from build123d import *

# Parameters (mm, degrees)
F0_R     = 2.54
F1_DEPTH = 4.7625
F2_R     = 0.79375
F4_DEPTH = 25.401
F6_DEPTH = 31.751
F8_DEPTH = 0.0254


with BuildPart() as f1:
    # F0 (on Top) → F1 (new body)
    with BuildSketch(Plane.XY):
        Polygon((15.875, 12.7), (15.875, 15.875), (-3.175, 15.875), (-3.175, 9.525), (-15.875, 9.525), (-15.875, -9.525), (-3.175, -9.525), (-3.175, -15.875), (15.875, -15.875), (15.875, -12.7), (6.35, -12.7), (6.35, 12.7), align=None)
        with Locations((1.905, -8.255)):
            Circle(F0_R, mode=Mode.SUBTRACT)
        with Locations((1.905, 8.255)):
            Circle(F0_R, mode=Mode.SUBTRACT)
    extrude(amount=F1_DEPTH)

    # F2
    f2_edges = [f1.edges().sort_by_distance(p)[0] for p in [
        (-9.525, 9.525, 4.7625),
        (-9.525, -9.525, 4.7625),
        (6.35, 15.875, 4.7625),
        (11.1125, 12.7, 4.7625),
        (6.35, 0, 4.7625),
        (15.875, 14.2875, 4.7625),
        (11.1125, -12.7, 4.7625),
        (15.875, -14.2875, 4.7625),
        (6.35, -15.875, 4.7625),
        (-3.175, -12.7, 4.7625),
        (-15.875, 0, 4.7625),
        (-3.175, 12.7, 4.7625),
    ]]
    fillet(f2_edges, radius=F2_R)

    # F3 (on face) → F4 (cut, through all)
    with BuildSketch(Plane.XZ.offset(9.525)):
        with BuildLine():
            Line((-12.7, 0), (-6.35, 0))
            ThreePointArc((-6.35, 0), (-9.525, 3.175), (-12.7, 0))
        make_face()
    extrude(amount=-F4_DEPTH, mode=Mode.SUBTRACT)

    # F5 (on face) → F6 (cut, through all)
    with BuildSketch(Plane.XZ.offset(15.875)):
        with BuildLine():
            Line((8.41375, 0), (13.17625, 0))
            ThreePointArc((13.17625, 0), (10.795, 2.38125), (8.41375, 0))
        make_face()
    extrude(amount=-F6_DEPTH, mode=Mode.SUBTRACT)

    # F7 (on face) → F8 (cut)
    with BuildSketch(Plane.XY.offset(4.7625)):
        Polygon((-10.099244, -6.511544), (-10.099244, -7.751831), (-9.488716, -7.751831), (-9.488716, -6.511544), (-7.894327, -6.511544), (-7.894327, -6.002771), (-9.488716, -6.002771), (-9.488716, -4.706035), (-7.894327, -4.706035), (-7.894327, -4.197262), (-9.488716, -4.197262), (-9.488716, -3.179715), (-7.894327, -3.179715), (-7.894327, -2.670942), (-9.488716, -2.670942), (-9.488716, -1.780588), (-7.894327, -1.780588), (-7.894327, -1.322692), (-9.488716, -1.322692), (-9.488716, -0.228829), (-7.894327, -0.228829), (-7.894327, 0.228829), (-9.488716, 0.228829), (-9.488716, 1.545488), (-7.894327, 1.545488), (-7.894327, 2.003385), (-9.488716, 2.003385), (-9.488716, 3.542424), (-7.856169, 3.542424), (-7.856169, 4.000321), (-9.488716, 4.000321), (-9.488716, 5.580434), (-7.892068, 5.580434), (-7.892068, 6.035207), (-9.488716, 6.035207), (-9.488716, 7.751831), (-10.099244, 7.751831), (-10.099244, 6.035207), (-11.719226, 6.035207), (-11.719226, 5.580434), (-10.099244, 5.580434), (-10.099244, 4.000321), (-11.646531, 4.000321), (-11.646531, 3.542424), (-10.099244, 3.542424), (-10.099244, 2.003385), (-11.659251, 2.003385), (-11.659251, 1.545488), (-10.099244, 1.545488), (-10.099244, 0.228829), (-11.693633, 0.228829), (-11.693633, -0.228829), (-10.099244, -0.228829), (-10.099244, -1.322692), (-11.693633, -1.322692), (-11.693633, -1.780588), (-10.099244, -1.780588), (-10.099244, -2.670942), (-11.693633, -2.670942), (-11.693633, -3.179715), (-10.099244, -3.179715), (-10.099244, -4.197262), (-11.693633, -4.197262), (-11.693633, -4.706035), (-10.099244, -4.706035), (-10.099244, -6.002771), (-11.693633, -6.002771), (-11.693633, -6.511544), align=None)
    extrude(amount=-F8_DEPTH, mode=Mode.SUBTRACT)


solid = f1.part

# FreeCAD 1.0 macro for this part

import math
import FreeCAD as App
import Part
import Sketcher
Q = App.Units.Quantity


def edges_at(feature, points):
    """Names of the edges that pass closest to the given points."""
    edges = feature.Shape.Edges
    near = lambda p: min(range(len(edges)), key=lambda i: edges[i].distToShape(Part.Vertex(*p))[0])
    return sorted({f"Edge{near(p) + 1}" for p in points})

doc = App.newDocument("Part")
params = doc.addObject("Spreadsheet::Sheet", "Params")
for row, (alias, value) in enumerate([
    ("sketch1_diameter", "0.2 in"),
    ("sketch1_height", "1 in"),
    ("sketch1_width", "0.5 in"),
    ("sketch1_width2", "0.75 in"),
    ("sketch1_width3", "0.375 in"),
    ("pad1_length", "0.1875 in"),
    ("fillet_radius", "0.03125 in"),
    ("sketch2_radius", "0.125 in"),
    ("sketch3_radius", "0.09375 in"),
    ("pocket3_length", "0.001 in"),
], start=1):
    params.set(f"A{row}", alias)
    params.set(f"B{row}", "=" + value)
    params.setAlias(f"B{row}", alias)

body = doc.addObject("PartDesign::Body", "Body")

sketch1 = body.newObject("Sketcher::SketchObject", "Sketch")
sketch1.AttachmentSupport = (doc.getObject("XY_Plane"), [""])
sketch1.MapMode = "FlatFace"
sketch1.addGeometry(Part.LineSegment(App.Vector(15.9, 12.7, 0), App.Vector(15.9, 15.9, 0)), False)
sketch1.addGeometry(Part.LineSegment(App.Vector(15.9, 15.9, 0), App.Vector(-3.2, 15.9, 0)), False)
sketch1.addGeometry(Part.LineSegment(App.Vector(-3.2, 15.9, 0), App.Vector(-3.2, 9.5, 0)), False)
sketch1.addGeometry(Part.LineSegment(App.Vector(-3.2, 9.5, 0), App.Vector(-15.9, 9.5, 0)), False)
sketch1.addGeometry(Part.LineSegment(App.Vector(-15.9, 9.5, 0), App.Vector(-15.9, -9.5, 0)), False)
sketch1.addGeometry(Part.LineSegment(App.Vector(-15.9, -9.5, 0), App.Vector(-3.2, -9.5, 0)), False)
sketch1.addGeometry(Part.LineSegment(App.Vector(-3.2, -9.5, 0), App.Vector(-3.2, -15.9, 0)), False)
sketch1.addGeometry(Part.LineSegment(App.Vector(-3.2, -15.9, 0), App.Vector(15.9, -15.9, 0)), False)
sketch1.addGeometry(Part.LineSegment(App.Vector(15.9, -15.9, 0), App.Vector(15.9, -12.7, 0)), False)
sketch1.addGeometry(Part.LineSegment(App.Vector(15.9, -12.7, 0), App.Vector(6.3, -12.7, 0)), False)
sketch1.addGeometry(Part.LineSegment(App.Vector(6.3, -12.7, 0), App.Vector(6.3, 12.7, 0)), False)
sketch1.addGeometry(Part.LineSegment(App.Vector(6.3, 12.7, 0), App.Vector(15.9, 12.7, 0)), False)
sketch1.addGeometry(Part.Circle(App.Vector(1.9, -8.3, 0), App.Vector(0, 0, 1), 2.5), False)
sketch1.addGeometry(Part.Circle(App.Vector(1.9, 8.3, 0), App.Vector(0, 0, 1), 2.5), False)
sketch1.addConstraint(Sketcher.Constraint("Coincident", 0, 2, 1, 1))
sketch1.addConstraint(Sketcher.Constraint("Coincident", 1, 2, 2, 1))
sketch1.addConstraint(Sketcher.Constraint("Coincident", 2, 2, 3, 1))
sketch1.addConstraint(Sketcher.Constraint("Coincident", 3, 2, 4, 1))
sketch1.addConstraint(Sketcher.Constraint("Coincident", 4, 2, 5, 1))
sketch1.addConstraint(Sketcher.Constraint("Coincident", 5, 2, 6, 1))
sketch1.addConstraint(Sketcher.Constraint("Coincident", 6, 2, 7, 1))
sketch1.addConstraint(Sketcher.Constraint("Coincident", 7, 2, 8, 1))
sketch1.addConstraint(Sketcher.Constraint("Coincident", 8, 2, 9, 1))
sketch1.addConstraint(Sketcher.Constraint("Coincident", 9, 2, 10, 1))
sketch1.addConstraint(Sketcher.Constraint("Coincident", 10, 2, 11, 1))
sketch1.addConstraint(Sketcher.Constraint("Coincident", 11, 2, 0, 1))
sketch1.addConstraint(Sketcher.Constraint("Vertical", 0))
sketch1.addConstraint(Sketcher.Constraint("Horizontal", 1))
sketch1.addConstraint(Sketcher.Constraint("Vertical", 2))
sketch1.addConstraint(Sketcher.Constraint("Horizontal", 3))
sketch1.addConstraint(Sketcher.Constraint("Vertical", 4))
sketch1.addConstraint(Sketcher.Constraint("Horizontal", 5))
sketch1.addConstraint(Sketcher.Constraint("Vertical", 6))
sketch1.addConstraint(Sketcher.Constraint("Horizontal", 7))
sketch1.addConstraint(Sketcher.Constraint("Vertical", 8))
sketch1.addConstraint(Sketcher.Constraint("Horizontal", 9))
sketch1.addConstraint(Sketcher.Constraint("Vertical", 10))
sketch1.addConstraint(Sketcher.Constraint("Horizontal", 11))
sketch1.addConstraint(Sketcher.Constraint("Equal", 12, 13))
sketch1.addConstraint(Sketcher.Constraint("Symmetric", 12, 3, 13, 3, -1))
sketch1.addConstraint(Sketcher.Constraint("Symmetric", 2, 2, 5, 2, -1))
sketch1.addConstraint(Sketcher.Constraint("Symmetric", 0, 2, 7, 2, -1))
sketch1.addConstraint(Sketcher.Constraint("Equal", 7, 4))
sketch1.addConstraint(Sketcher.Constraint("Equal", 0, 8))
sketch1.addConstraint(Sketcher.Constraint("Diameter", 12, Q("0.2 in")))
sketch1.addConstraint(Sketcher.Constraint("DistanceY", 10, 1, 10, 2, Q("1 in")))
sketch1.addConstraint(Sketcher.Constraint("DistanceX", 3, 2, 3, 1, Q("0.5 in")))
sketch1.addConstraint(Sketcher.Constraint("DistanceY", 4, 2, 1, 2, Q("1 in")))
sketch1.addConstraint(Sketcher.Constraint("DistanceX", 1, 2, 1, 1, Q("0.75 in")))
sketch1.addConstraint(Sketcher.Constraint("DistanceY", 13, 3, 0, 2, Q("0.3 in")))
sketch1.addConstraint(Sketcher.Constraint("DistanceX", 1, 2, 13, 3, Q("0.2 in")))
sketch1.addConstraint(Sketcher.Constraint("DistanceX", 9, 2, 9, 1, Q("0.375 in")))
sketch1.addConstraint(Sketcher.Constraint("DistanceX", -1, 1, 9, 2, Q("0.25 in")))
sketch1.setExpression("Constraints[30]", "Params.sketch1_diameter")
sketch1.setExpression("Constraints[31]", "Params.sketch1_height")
sketch1.setExpression("Constraints[32]", "Params.sketch1_width")
sketch1.setExpression("Constraints[34]", "Params.sketch1_width2")
sketch1.setExpression("Constraints[37]", "Params.sketch1_width3")
pad1 = body.newObject("PartDesign::Pad", "Pad")
pad1.Profile = sketch1
pad1.setExpression("Length", "Params.pad1_length")
doc.recompute()

fillet = body.newObject("PartDesign::Fillet", "Fillet")
fillet.Base = (pad1, edges_at(pad1, [
    (-9.525, 9.525, 4.763),
    (-9.525, -9.525, 4.763),
    (6.35, 15.875, 4.763),
    (11.113, 12.7, 4.763),
    (6.35, 0, 4.763),
    (15.875, 14.287, 4.763),
    (11.113, -12.7, 4.763),
    (15.875, -14.287, 4.763),
    (6.35, -15.875, 4.763),
    (-3.175, -12.7, 4.763),
    (-15.875, 0, 4.763),
    (-3.175, 12.7, 4.763),
]))
fillet.setExpression("Radius", "Params.fillet_radius")

sketch2 = body.newObject("Sketcher::SketchObject", "Sketch001")
sketch2.AttachmentSupport = (doc.getObject("XZ_Plane"), [""])
sketch2.MapMode = "FlatFace"
sketch2.AttachmentOffset = App.Placement(App.Vector(0, 0, 0.375 * 25.4), App.Rotation())
sketch2.addGeometry(Part.LineSegment(App.Vector(-12.7, 0, 0), App.Vector(-6.3, 0, 0)), False)
sketch2.addGeometry(Part.ArcOfCircle(Part.Circle(App.Vector(-9.5, 0, 0), App.Vector(0, 0, 1), 3.2), math.radians(0), math.radians(180)), False)
sketch2.addConstraint(Sketcher.Constraint("Coincident", 0, 1, 1, 2))
sketch2.addConstraint(Sketcher.Constraint("Coincident", 1, 1, 0, 2))
sketch2.addConstraint(Sketcher.Constraint("Horizontal", 0))
sketch2.addConstraint(Sketcher.Constraint("PointOnObject", 1, 3, -1))
sketch2.addConstraint(Sketcher.Constraint("PointOnObject", 0, 1, -1))
sketch2.addConstraint(Sketcher.Constraint("Radius", 1, Q("0.125 in")))
sketch2.addConstraint(Sketcher.Constraint("DistanceX", 0, 1, -1, 1, Q("0.5 in")))
sketch2.setExpression("Constraints[5]", "Params.sketch2_radius")
pocket1 = body.newObject("PartDesign::Pocket", "Pocket")
pocket1.Profile = sketch2
pocket1.Type = "ThroughAll"

sketch3 = body.newObject("Sketcher::SketchObject", "Sketch002")
sketch3.AttachmentSupport = (doc.getObject("XZ_Plane"), [""])
sketch3.MapMode = "FlatFace"
sketch3.AttachmentOffset = App.Placement(App.Vector(0, 0, 0.625 * 25.4), App.Rotation())
sketch3.addGeometry(Part.LineSegment(App.Vector(8.4, 0, 0), App.Vector(13.2, 0, 0)), False)
sketch3.addGeometry(Part.ArcOfCircle(Part.Circle(App.Vector(10.8, 0, 0), App.Vector(0, 0, 1), 2.4), math.radians(0), math.radians(180)), False)
sketch3.addConstraint(Sketcher.Constraint("Coincident", 0, 1, 1, 2))
sketch3.addConstraint(Sketcher.Constraint("Coincident", 1, 1, 0, 2))
sketch3.addConstraint(Sketcher.Constraint("Horizontal", 0))
sketch3.addConstraint(Sketcher.Constraint("PointOnObject", 1, 3, -1))
sketch3.addConstraint(Sketcher.Constraint("PointOnObject", 0, 1, -1))
sketch3.addConstraint(Sketcher.Constraint("Radius", 1, Q("0.09375 in")))
sketch3.addConstraint(Sketcher.Constraint("DistanceX", -1, 1, 1, 3, Q("0.425 in")))
sketch3.setExpression("Constraints[5]", "Params.sketch3_radius")
pocket2 = body.newObject("PartDesign::Pocket", "Pocket001")
pocket2.Profile = sketch3
pocket2.Type = "ThroughAll"

sketch4 = body.newObject("Sketcher::SketchObject", "Sketch003")
sketch4.AttachmentSupport = (doc.getObject("XY_Plane"), [""])
sketch4.MapMode = "FlatFace"
sketch4.AttachmentOffset = App.Placement(App.Vector(0, 0, 0.1875 * 25.4), App.Rotation())
sketch4.addGeometry(Part.LineSegment(App.Vector(-10.1, -6.51, 0), App.Vector(-10.1, -7.75, 0)), False)
sketch4.addGeometry(Part.LineSegment(App.Vector(-10.1, -7.75, 0), App.Vector(-9.49, -7.75, 0)), False)
sketch4.addGeometry(Part.LineSegment(App.Vector(-9.49, -7.75, 0), App.Vector(-9.49, -6.51, 0)), False)
sketch4.addGeometry(Part.LineSegment(App.Vector(-9.49, -6.51, 0), App.Vector(-7.89, -6.51, 0)), False)
sketch4.addGeometry(Part.LineSegment(App.Vector(-7.89, -6.51, 0), App.Vector(-7.89, -6, 0)), False)
sketch4.addGeometry(Part.LineSegment(App.Vector(-7.89, -6, 0), App.Vector(-9.49, -6, 0)), False)
sketch4.addGeometry(Part.LineSegment(App.Vector(-9.49, -6, 0), App.Vector(-9.49, -4.71, 0)), False)
sketch4.addGeometry(Part.LineSegment(App.Vector(-9.49, -4.71, 0), App.Vector(-7.89, -4.71, 0)), False)
sketch4.addGeometry(Part.LineSegment(App.Vector(-7.89, -4.71, 0), App.Vector(-7.89, -4.2, 0)), False)
sketch4.addGeometry(Part.LineSegment(App.Vector(-7.89, -4.2, 0), App.Vector(-9.49, -4.2, 0)), False)
sketch4.addGeometry(Part.LineSegment(App.Vector(-9.49, -4.2, 0), App.Vector(-9.49, -3.18, 0)), False)
sketch4.addGeometry(Part.LineSegment(App.Vector(-9.49, -3.18, 0), App.Vector(-7.89, -3.18, 0)), False)
sketch4.addGeometry(Part.LineSegment(App.Vector(-7.89, -3.18, 0), App.Vector(-7.89, -2.67, 0)), False)
sketch4.addGeometry(Part.LineSegment(App.Vector(-7.89, -2.67, 0), App.Vector(-9.49, -2.67, 0)), False)
sketch4.addGeometry(Part.LineSegment(App.Vector(-9.49, -2.67, 0), App.Vector(-9.49, -1.78, 0)), False)
sketch4.addGeometry(Part.LineSegment(App.Vector(-9.49, -1.78, 0), App.Vector(-7.89, -1.78, 0)), False)
sketch4.addGeometry(Part.LineSegment(App.Vector(-7.89, -1.78, 0), App.Vector(-7.89, -1.32, 0)), False)
sketch4.addGeometry(Part.LineSegment(App.Vector(-7.89, -1.32, 0), App.Vector(-9.49, -1.32, 0)), False)
sketch4.addGeometry(Part.LineSegment(App.Vector(-9.49, -1.32, 0), App.Vector(-9.49, -0.23, 0)), False)
sketch4.addGeometry(Part.LineSegment(App.Vector(-9.49, -0.23, 0), App.Vector(-7.89, -0.23, 0)), False)
sketch4.addGeometry(Part.LineSegment(App.Vector(-7.89, -0.23, 0), App.Vector(-7.89, 0.23, 0)), False)
sketch4.addGeometry(Part.LineSegment(App.Vector(-7.89, 0.23, 0), App.Vector(-9.49, 0.23, 0)), False)
sketch4.addGeometry(Part.LineSegment(App.Vector(-9.49, 0.23, 0), App.Vector(-9.49, 1.55, 0)), False)
sketch4.addGeometry(Part.LineSegment(App.Vector(-9.49, 1.55, 0), App.Vector(-7.89, 1.55, 0)), False)
sketch4.addGeometry(Part.LineSegment(App.Vector(-7.89, 1.55, 0), App.Vector(-7.89, 2, 0)), False)
sketch4.addGeometry(Part.LineSegment(App.Vector(-7.89, 2, 0), App.Vector(-9.49, 2, 0)), False)
sketch4.addGeometry(Part.LineSegment(App.Vector(-9.49, 2, 0), App.Vector(-9.49, 3.54, 0)), False)
sketch4.addGeometry(Part.LineSegment(App.Vector(-9.49, 3.54, 0), App.Vector(-7.86, 3.54, 0)), False)
sketch4.addGeometry(Part.LineSegment(App.Vector(-7.86, 3.54, 0), App.Vector(-7.86, 4, 0)), False)
sketch4.addGeometry(Part.LineSegment(App.Vector(-7.86, 4, 0), App.Vector(-9.49, 4, 0)), False)
sketch4.addGeometry(Part.LineSegment(App.Vector(-9.49, 4, 0), App.Vector(-9.49, 5.58, 0)), False)
sketch4.addGeometry(Part.LineSegment(App.Vector(-9.49, 5.58, 0), App.Vector(-7.89, 5.58, 0)), False)
sketch4.addGeometry(Part.LineSegment(App.Vector(-7.89, 5.58, 0), App.Vector(-7.89, 6.04, 0)), False)
sketch4.addGeometry(Part.LineSegment(App.Vector(-7.89, 6.04, 0), App.Vector(-9.49, 6.04, 0)), False)
sketch4.addGeometry(Part.LineSegment(App.Vector(-9.49, 6.04, 0), App.Vector(-9.49, 7.75, 0)), False)
sketch4.addGeometry(Part.LineSegment(App.Vector(-9.49, 7.75, 0), App.Vector(-10.1, 7.75, 0)), False)
sketch4.addGeometry(Part.LineSegment(App.Vector(-10.1, 7.75, 0), App.Vector(-10.1, 6.04, 0)), False)
sketch4.addGeometry(Part.LineSegment(App.Vector(-10.1, 6.04, 0), App.Vector(-11.72, 6.04, 0)), False)
sketch4.addGeometry(Part.LineSegment(App.Vector(-11.72, 6.04, 0), App.Vector(-11.72, 5.58, 0)), False)
sketch4.addGeometry(Part.LineSegment(App.Vector(-11.72, 5.58, 0), App.Vector(-10.1, 5.58, 0)), False)
sketch4.addGeometry(Part.LineSegment(App.Vector(-10.1, 5.58, 0), App.Vector(-10.1, 4, 0)), False)
sketch4.addGeometry(Part.LineSegment(App.Vector(-10.1, 4, 0), App.Vector(-11.65, 4, 0)), False)
sketch4.addGeometry(Part.LineSegment(App.Vector(-11.65, 4, 0), App.Vector(-11.65, 3.54, 0)), False)
sketch4.addGeometry(Part.LineSegment(App.Vector(-11.65, 3.54, 0), App.Vector(-10.1, 3.54, 0)), False)
sketch4.addGeometry(Part.LineSegment(App.Vector(-10.1, 3.54, 0), App.Vector(-10.1, 2, 0)), False)
sketch4.addGeometry(Part.LineSegment(App.Vector(-10.1, 2, 0), App.Vector(-11.66, 2, 0)), False)
sketch4.addGeometry(Part.LineSegment(App.Vector(-11.66, 2, 0), App.Vector(-11.66, 1.55, 0)), False)
sketch4.addGeometry(Part.LineSegment(App.Vector(-11.66, 1.55, 0), App.Vector(-10.1, 1.55, 0)), False)
sketch4.addGeometry(Part.LineSegment(App.Vector(-10.1, 1.55, 0), App.Vector(-10.1, 0.23, 0)), False)
sketch4.addGeometry(Part.LineSegment(App.Vector(-10.1, 0.23, 0), App.Vector(-11.69, 0.23, 0)), False)
sketch4.addGeometry(Part.LineSegment(App.Vector(-11.69, 0.23, 0), App.Vector(-11.69, -0.23, 0)), False)
sketch4.addGeometry(Part.LineSegment(App.Vector(-11.69, -0.23, 0), App.Vector(-10.1, -0.23, 0)), False)
sketch4.addGeometry(Part.LineSegment(App.Vector(-10.1, -0.23, 0), App.Vector(-10.1, -1.32, 0)), False)
sketch4.addGeometry(Part.LineSegment(App.Vector(-10.1, -1.32, 0), App.Vector(-11.69, -1.32, 0)), False)
sketch4.addGeometry(Part.LineSegment(App.Vector(-11.69, -1.32, 0), App.Vector(-11.69, -1.78, 0)), False)
sketch4.addGeometry(Part.LineSegment(App.Vector(-11.69, -1.78, 0), App.Vector(-10.1, -1.78, 0)), False)
sketch4.addGeometry(Part.LineSegment(App.Vector(-10.1, -1.78, 0), App.Vector(-10.1, -2.67, 0)), False)
sketch4.addGeometry(Part.LineSegment(App.Vector(-10.1, -2.67, 0), App.Vector(-11.69, -2.67, 0)), False)
sketch4.addGeometry(Part.LineSegment(App.Vector(-11.69, -2.67, 0), App.Vector(-11.69, -3.18, 0)), False)
sketch4.addGeometry(Part.LineSegment(App.Vector(-11.69, -3.18, 0), App.Vector(-10.1, -3.18, 0)), False)
sketch4.addGeometry(Part.LineSegment(App.Vector(-10.1, -3.18, 0), App.Vector(-10.1, -4.2, 0)), False)
sketch4.addGeometry(Part.LineSegment(App.Vector(-10.1, -4.2, 0), App.Vector(-11.69, -4.2, 0)), False)
sketch4.addGeometry(Part.LineSegment(App.Vector(-11.69, -4.2, 0), App.Vector(-11.69, -4.71, 0)), False)
sketch4.addGeometry(Part.LineSegment(App.Vector(-11.69, -4.71, 0), App.Vector(-10.1, -4.71, 0)), False)
sketch4.addGeometry(Part.LineSegment(App.Vector(-10.1, -4.71, 0), App.Vector(-10.1, -6, 0)), False)
sketch4.addGeometry(Part.LineSegment(App.Vector(-10.1, -6, 0), App.Vector(-11.69, -6, 0)), False)
sketch4.addGeometry(Part.LineSegment(App.Vector(-11.69, -6, 0), App.Vector(-11.69, -6.51, 0)), False)
sketch4.addGeometry(Part.LineSegment(App.Vector(-11.69, -6.51, 0), App.Vector(-10.1, -6.51, 0)), False)
sketch4.addConstraint(Sketcher.Constraint("Coincident", 0, 2, 1, 1))
sketch4.addConstraint(Sketcher.Constraint("Coincident", 1, 2, 2, 1))
sketch4.addConstraint(Sketcher.Constraint("Coincident", 2, 2, 3, 1))
sketch4.addConstraint(Sketcher.Constraint("Coincident", 3, 2, 4, 1))
sketch4.addConstraint(Sketcher.Constraint("Coincident", 4, 2, 5, 1))
sketch4.addConstraint(Sketcher.Constraint("Coincident", 5, 2, 6, 1))
sketch4.addConstraint(Sketcher.Constraint("Coincident", 6, 2, 7, 1))
sketch4.addConstraint(Sketcher.Constraint("Coincident", 7, 2, 8, 1))
sketch4.addConstraint(Sketcher.Constraint("Coincident", 8, 2, 9, 1))
sketch4.addConstraint(Sketcher.Constraint("Coincident", 9, 2, 10, 1))
sketch4.addConstraint(Sketcher.Constraint("Coincident", 10, 2, 11, 1))
sketch4.addConstraint(Sketcher.Constraint("Coincident", 11, 2, 12, 1))
sketch4.addConstraint(Sketcher.Constraint("Coincident", 12, 2, 13, 1))
sketch4.addConstraint(Sketcher.Constraint("Coincident", 13, 2, 14, 1))
sketch4.addConstraint(Sketcher.Constraint("Coincident", 14, 2, 15, 1))
sketch4.addConstraint(Sketcher.Constraint("Coincident", 15, 2, 16, 1))
sketch4.addConstraint(Sketcher.Constraint("Coincident", 16, 2, 17, 1))
sketch4.addConstraint(Sketcher.Constraint("Coincident", 17, 2, 18, 1))
sketch4.addConstraint(Sketcher.Constraint("Coincident", 18, 2, 19, 1))
sketch4.addConstraint(Sketcher.Constraint("Coincident", 19, 2, 20, 1))
sketch4.addConstraint(Sketcher.Constraint("Coincident", 20, 2, 21, 1))
sketch4.addConstraint(Sketcher.Constraint("Coincident", 21, 2, 22, 1))
sketch4.addConstraint(Sketcher.Constraint("Coincident", 22, 2, 23, 1))
sketch4.addConstraint(Sketcher.Constraint("Coincident", 23, 2, 24, 1))
sketch4.addConstraint(Sketcher.Constraint("Coincident", 24, 2, 25, 1))
sketch4.addConstraint(Sketcher.Constraint("Coincident", 25, 2, 26, 1))
sketch4.addConstraint(Sketcher.Constraint("Coincident", 26, 2, 27, 1))
sketch4.addConstraint(Sketcher.Constraint("Coincident", 27, 2, 28, 1))
sketch4.addConstraint(Sketcher.Constraint("Coincident", 28, 2, 29, 1))
sketch4.addConstraint(Sketcher.Constraint("Coincident", 29, 2, 30, 1))
sketch4.addConstraint(Sketcher.Constraint("Coincident", 30, 2, 31, 1))
sketch4.addConstraint(Sketcher.Constraint("Coincident", 31, 2, 32, 1))
sketch4.addConstraint(Sketcher.Constraint("Coincident", 32, 2, 33, 1))
sketch4.addConstraint(Sketcher.Constraint("Coincident", 33, 2, 34, 1))
sketch4.addConstraint(Sketcher.Constraint("Coincident", 34, 2, 35, 1))
sketch4.addConstraint(Sketcher.Constraint("Coincident", 35, 2, 36, 1))
sketch4.addConstraint(Sketcher.Constraint("Coincident", 36, 2, 37, 1))
sketch4.addConstraint(Sketcher.Constraint("Coincident", 37, 2, 38, 1))
sketch4.addConstraint(Sketcher.Constraint("Coincident", 38, 2, 39, 1))
sketch4.addConstraint(Sketcher.Constraint("Coincident", 39, 2, 40, 1))
sketch4.addConstraint(Sketcher.Constraint("Coincident", 40, 2, 41, 1))
sketch4.addConstraint(Sketcher.Constraint("Coincident", 41, 2, 42, 1))
sketch4.addConstraint(Sketcher.Constraint("Coincident", 42, 2, 43, 1))
sketch4.addConstraint(Sketcher.Constraint("Coincident", 43, 2, 44, 1))
sketch4.addConstraint(Sketcher.Constraint("Coincident", 44, 2, 45, 1))
sketch4.addConstraint(Sketcher.Constraint("Coincident", 45, 2, 46, 1))
sketch4.addConstraint(Sketcher.Constraint("Coincident", 46, 2, 47, 1))
sketch4.addConstraint(Sketcher.Constraint("Coincident", 47, 2, 48, 1))
sketch4.addConstraint(Sketcher.Constraint("Coincident", 48, 2, 49, 1))
sketch4.addConstraint(Sketcher.Constraint("Coincident", 49, 2, 50, 1))
sketch4.addConstraint(Sketcher.Constraint("Coincident", 50, 2, 51, 1))
sketch4.addConstraint(Sketcher.Constraint("Coincident", 51, 2, 52, 1))
sketch4.addConstraint(Sketcher.Constraint("Coincident", 52, 2, 53, 1))
sketch4.addConstraint(Sketcher.Constraint("Coincident", 53, 2, 54, 1))
sketch4.addConstraint(Sketcher.Constraint("Coincident", 54, 2, 55, 1))
sketch4.addConstraint(Sketcher.Constraint("Coincident", 55, 2, 56, 1))
sketch4.addConstraint(Sketcher.Constraint("Coincident", 56, 2, 57, 1))
sketch4.addConstraint(Sketcher.Constraint("Coincident", 57, 2, 58, 1))
sketch4.addConstraint(Sketcher.Constraint("Coincident", 58, 2, 59, 1))
sketch4.addConstraint(Sketcher.Constraint("Coincident", 59, 2, 60, 1))
sketch4.addConstraint(Sketcher.Constraint("Coincident", 60, 2, 61, 1))
sketch4.addConstraint(Sketcher.Constraint("Coincident", 61, 2, 62, 1))
sketch4.addConstraint(Sketcher.Constraint("Coincident", 62, 2, 63, 1))
sketch4.addConstraint(Sketcher.Constraint("Coincident", 63, 2, 64, 1))
sketch4.addConstraint(Sketcher.Constraint("Coincident", 64, 2, 65, 1))
sketch4.addConstraint(Sketcher.Constraint("Coincident", 65, 2, 66, 1))
sketch4.addConstraint(Sketcher.Constraint("Coincident", 66, 2, 67, 1))
sketch4.addConstraint(Sketcher.Constraint("Coincident", 67, 2, 0, 1))
sketch4.addConstraint(Sketcher.Constraint("Vertical", 0))
sketch4.addConstraint(Sketcher.Constraint("Horizontal", 1))
sketch4.addConstraint(Sketcher.Constraint("Vertical", 2))
sketch4.addConstraint(Sketcher.Constraint("Horizontal", 3))
sketch4.addConstraint(Sketcher.Constraint("Vertical", 4))
sketch4.addConstraint(Sketcher.Constraint("Horizontal", 5))
sketch4.addConstraint(Sketcher.Constraint("Vertical", 6))
sketch4.addConstraint(Sketcher.Constraint("Horizontal", 7))
sketch4.addConstraint(Sketcher.Constraint("Vertical", 8))
sketch4.addConstraint(Sketcher.Constraint("Horizontal", 9))
sketch4.addConstraint(Sketcher.Constraint("Vertical", 10))
sketch4.addConstraint(Sketcher.Constraint("Horizontal", 11))
sketch4.addConstraint(Sketcher.Constraint("Vertical", 12))
sketch4.addConstraint(Sketcher.Constraint("Horizontal", 13))
sketch4.addConstraint(Sketcher.Constraint("Vertical", 14))
sketch4.addConstraint(Sketcher.Constraint("Horizontal", 15))
sketch4.addConstraint(Sketcher.Constraint("Vertical", 16))
sketch4.addConstraint(Sketcher.Constraint("Horizontal", 17))
sketch4.addConstraint(Sketcher.Constraint("Vertical", 18))
sketch4.addConstraint(Sketcher.Constraint("Horizontal", 19))
sketch4.addConstraint(Sketcher.Constraint("Vertical", 20))
sketch4.addConstraint(Sketcher.Constraint("Horizontal", 21))
sketch4.addConstraint(Sketcher.Constraint("Vertical", 22))
sketch4.addConstraint(Sketcher.Constraint("Horizontal", 23))
sketch4.addConstraint(Sketcher.Constraint("Vertical", 24))
sketch4.addConstraint(Sketcher.Constraint("Horizontal", 25))
sketch4.addConstraint(Sketcher.Constraint("Vertical", 26))
sketch4.addConstraint(Sketcher.Constraint("Horizontal", 27))
sketch4.addConstraint(Sketcher.Constraint("Vertical", 28))
sketch4.addConstraint(Sketcher.Constraint("Horizontal", 29))
sketch4.addConstraint(Sketcher.Constraint("Vertical", 30))
sketch4.addConstraint(Sketcher.Constraint("Horizontal", 31))
sketch4.addConstraint(Sketcher.Constraint("Vertical", 32))
sketch4.addConstraint(Sketcher.Constraint("Horizontal", 33))
sketch4.addConstraint(Sketcher.Constraint("Vertical", 34))
sketch4.addConstraint(Sketcher.Constraint("Horizontal", 35))
sketch4.addConstraint(Sketcher.Constraint("Vertical", 36))
sketch4.addConstraint(Sketcher.Constraint("Horizontal", 37))
sketch4.addConstraint(Sketcher.Constraint("Vertical", 38))
sketch4.addConstraint(Sketcher.Constraint("Horizontal", 39))
sketch4.addConstraint(Sketcher.Constraint("Vertical", 40))
sketch4.addConstraint(Sketcher.Constraint("Horizontal", 41))
sketch4.addConstraint(Sketcher.Constraint("Vertical", 42))
sketch4.addConstraint(Sketcher.Constraint("Horizontal", 43))
sketch4.addConstraint(Sketcher.Constraint("Vertical", 44))
sketch4.addConstraint(Sketcher.Constraint("Horizontal", 45))
sketch4.addConstraint(Sketcher.Constraint("Vertical", 46))
sketch4.addConstraint(Sketcher.Constraint("Horizontal", 47))
sketch4.addConstraint(Sketcher.Constraint("Vertical", 48))
sketch4.addConstraint(Sketcher.Constraint("Horizontal", 49))
sketch4.addConstraint(Sketcher.Constraint("Vertical", 50))
sketch4.addConstraint(Sketcher.Constraint("Horizontal", 51))
sketch4.addConstraint(Sketcher.Constraint("Vertical", 52))
sketch4.addConstraint(Sketcher.Constraint("Horizontal", 53))
sketch4.addConstraint(Sketcher.Constraint("Vertical", 54))
sketch4.addConstraint(Sketcher.Constraint("Horizontal", 55))
sketch4.addConstraint(Sketcher.Constraint("Vertical", 56))
sketch4.addConstraint(Sketcher.Constraint("Horizontal", 57))
sketch4.addConstraint(Sketcher.Constraint("Vertical", 58))
sketch4.addConstraint(Sketcher.Constraint("Horizontal", 59))
sketch4.addConstraint(Sketcher.Constraint("Vertical", 60))
sketch4.addConstraint(Sketcher.Constraint("Horizontal", 61))
sketch4.addConstraint(Sketcher.Constraint("Vertical", 62))
sketch4.addConstraint(Sketcher.Constraint("Horizontal", 63))
sketch4.addConstraint(Sketcher.Constraint("Vertical", 64))
sketch4.addConstraint(Sketcher.Constraint("Horizontal", 65))
sketch4.addConstraint(Sketcher.Constraint("Vertical", 66))
sketch4.addConstraint(Sketcher.Constraint("Horizontal", 67))
sketch4.addConstraint(Sketcher.Constraint("Symmetric", 18, 2, 21, 2, -1))
sketch4.addConstraint(Sketcher.Constraint("Symmetric", 1, 2, 34, 2, -1))
sketch4.addConstraint(Sketcher.Constraint("Symmetric", 48, 2, 51, 2, -1))
sketch4.addConstraint(Sketcher.Constraint("Horizontal", 33, 2, 36, 2))
sketch4.addConstraint(Sketcher.Constraint("Horizontal", 31, 2, 38, 2))
sketch4.addConstraint(Sketcher.Constraint("Horizontal", 29, 2, 40, 2))
sketch4.addConstraint(Sketcher.Constraint("Horizontal", 27, 2, 42, 2))
sketch4.addConstraint(Sketcher.Constraint("Horizontal", 25, 2, 44, 2))
sketch4.addConstraint(Sketcher.Constraint("Horizontal", 23, 2, 46, 2))
sketch4.addConstraint(Sketcher.Constraint("Horizontal", 21, 2, 48, 2))
sketch4.addConstraint(Sketcher.Constraint("Horizontal", 17, 2, 52, 2))
sketch4.addConstraint(Sketcher.Constraint("Horizontal", 15, 2, 54, 2))
sketch4.addConstraint(Sketcher.Constraint("Horizontal", 13, 2, 56, 2))
sketch4.addConstraint(Sketcher.Constraint("Horizontal", 11, 2, 58, 2))
sketch4.addConstraint(Sketcher.Constraint("Horizontal", 9, 2, 60, 2))
sketch4.addConstraint(Sketcher.Constraint("Horizontal", 7, 2, 62, 2))
sketch4.addConstraint(Sketcher.Constraint("Horizontal", 5, 2, 64, 2))
sketch4.addConstraint(Sketcher.Constraint("Horizontal", 3, 2, 66, 2))
sketch4.addConstraint(Sketcher.Constraint("Vertical", 2, 2, 5, 2))
sketch4.addConstraint(Sketcher.Constraint("Vertical", 4, 2, 7, 2))
sketch4.addConstraint(Sketcher.Constraint("Vertical", 6, 2, 9, 2))
sketch4.addConstraint(Sketcher.Constraint("Vertical", 8, 2, 11, 2))
sketch4.addConstraint(Sketcher.Constraint("Vertical", 10, 2, 13, 2))
sketch4.addConstraint(Sketcher.Constraint("Vertical", 12, 2, 15, 2))
sketch4.addConstraint(Sketcher.Constraint("Vertical", 14, 2, 17, 2))
sketch4.addConstraint(Sketcher.Constraint("Vertical", 16, 2, 19, 2))
sketch4.addConstraint(Sketcher.Constraint("Vertical", 20, 2, 23, 2))
sketch4.addConstraint(Sketcher.Constraint("Vertical", 22, 2, 25, 2))
sketch4.addConstraint(Sketcher.Constraint("Vertical", 26, 2, 29, 2))
sketch4.addConstraint(Sketcher.Constraint("Vertical", 0, 2, 35, 2))
sketch4.addConstraint(Sketcher.Constraint("Vertical", 36, 2, 39, 2))
sketch4.addConstraint(Sketcher.Constraint("Vertical", 40, 2, 43, 2))
sketch4.addConstraint(Sketcher.Constraint("Vertical", 44, 2, 47, 2))
sketch4.addConstraint(Sketcher.Constraint("Vertical", 50, 2, 53, 2))
sketch4.addConstraint(Sketcher.Constraint("Vertical", 52, 2, 55, 2))
sketch4.addConstraint(Sketcher.Constraint("Vertical", 54, 2, 57, 2))
sketch4.addConstraint(Sketcher.Constraint("Vertical", 56, 2, 59, 2))
sketch4.addConstraint(Sketcher.Constraint("Vertical", 58, 2, 61, 2))
sketch4.addConstraint(Sketcher.Constraint("Vertical", 60, 2, 63, 2))
sketch4.addConstraint(Sketcher.Constraint("Vertical", 62, 2, 65, 2))
sketch4.addConstraint(Sketcher.Constraint("Equal", 25, 49))
sketch4.addConstraint(Sketcher.Constraint("Equal", 4, 8))
sketch4.addConstraint(Sketcher.Constraint("Equal", 8, 12))
sketch4.addConstraint(Sketcher.Constraint("Equal", 16, 24))
sketch4.addConstraint(Sketcher.Constraint("Equal", 24, 28))
sketch4.addConstraint(Sketcher.Constraint("DistanceX", 1, 1, 1, 2, 0.610528))
sketch4.addConstraint(Sketcher.Constraint("DistanceX", 3, 1, 3, 2, 1.594389))
sketch4.addConstraint(Sketcher.Constraint("DistanceX", 31, 1, 31, 2, 1.596648))
sketch4.addConstraint(Sketcher.Constraint("DistanceY", 22, 1, 22, 2, 1.316659))
sketch4.addConstraint(Sketcher.Constraint("DistanceY", 26, 1, 26, 2, 1.539039))
sketch4.addConstraint(Sketcher.Constraint("DistanceX", 27, 1, 27, 2, 1.632547))
sketch4.addConstraint(Sketcher.Constraint("DistanceX", 37, 2, 37, 1, 1.619982))
sketch4.addConstraint(Sketcher.Constraint("DistanceX", 41, 2, 41, 1, 1.547287))
sketch4.addConstraint(Sketcher.Constraint("DistanceX", 45, 2, 45, 1, 1.560007))
sketch4.addConstraint(Sketcher.Constraint("DistanceY", 0, 2, 0, 1, 1.240287))
sketch4.addConstraint(Sketcher.Constraint("DistanceY", 4, 1, 4, 2, 0.508773))
sketch4.addConstraint(Sketcher.Constraint("DistanceY", 6, 1, 6, 2, 1.296736))
sketch4.addConstraint(Sketcher.Constraint("DistanceY", 10, 1, 10, 2, 1.017547))
sketch4.addConstraint(Sketcher.Constraint("DistanceY", 14, 1, 14, 2, 0.890354))
sketch4.addConstraint(Sketcher.Constraint("DistanceY", 16, 1, 16, 2, 0.457896))
sketch4.addConstraint(Sketcher.Constraint("DistanceY", 18, 1, 18, 2, 1.093863))
sketch4.addConstraint(Sketcher.Constraint("DistanceY", 20, 1, 20, 2, 0.457658))
sketch4.addConstraint(Sketcher.Constraint("DistanceY", 30, 1, 30, 2, 1.580113))
sketch4.addConstraint(Sketcher.Constraint("DistanceY", 32, 1, 32, 2, 0.454773))
sketch4.addConstraint(Sketcher.Constraint("DistanceX", 27, 2, -1, 1, 7.856169))
pocket3 = body.newObject("PartDesign::Pocket", "Pocket002")
pocket3.Profile = sketch4
pocket3.setExpression("Length", "Params.pocket3_length")

doc.recompute()
